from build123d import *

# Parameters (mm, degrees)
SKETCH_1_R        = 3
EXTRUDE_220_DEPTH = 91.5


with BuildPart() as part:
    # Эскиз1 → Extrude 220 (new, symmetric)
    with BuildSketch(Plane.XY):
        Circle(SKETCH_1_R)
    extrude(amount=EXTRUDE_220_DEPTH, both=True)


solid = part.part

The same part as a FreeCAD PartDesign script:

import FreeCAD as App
import Part
import Sketcher
from FreeCAD import Vector

doc = App.newDocument("Part")
body = doc.addObject("PartDesign::Body", "Body")

# Sketch on XY plane
sketch1 = doc.addObject("Sketcher::SketchObject", "Sketch")
body.addObject(sketch1)
sketch1.AttachmentSupport = (doc.XY_Plane, [""])
sketch1.MapMode = "FlatFace"
sketch1.addGeometry(Part.Circle(Vector(0, 0, 0), Vector(0, 0, 1), 3), False)
sketch1.addConstraint([
    Sketcher.Constraint("Coincident", 0, 3, -1, 1),
    Sketcher.Constraint("Diameter", 0, 6.0),
])
pad1 = doc.addObject("PartDesign::Pad", "Pad")
body.addObject(pad1)
pad1.Profile = sketch1
pad1.Length = 183
pad1.Midplane = True

doc.recompute()
